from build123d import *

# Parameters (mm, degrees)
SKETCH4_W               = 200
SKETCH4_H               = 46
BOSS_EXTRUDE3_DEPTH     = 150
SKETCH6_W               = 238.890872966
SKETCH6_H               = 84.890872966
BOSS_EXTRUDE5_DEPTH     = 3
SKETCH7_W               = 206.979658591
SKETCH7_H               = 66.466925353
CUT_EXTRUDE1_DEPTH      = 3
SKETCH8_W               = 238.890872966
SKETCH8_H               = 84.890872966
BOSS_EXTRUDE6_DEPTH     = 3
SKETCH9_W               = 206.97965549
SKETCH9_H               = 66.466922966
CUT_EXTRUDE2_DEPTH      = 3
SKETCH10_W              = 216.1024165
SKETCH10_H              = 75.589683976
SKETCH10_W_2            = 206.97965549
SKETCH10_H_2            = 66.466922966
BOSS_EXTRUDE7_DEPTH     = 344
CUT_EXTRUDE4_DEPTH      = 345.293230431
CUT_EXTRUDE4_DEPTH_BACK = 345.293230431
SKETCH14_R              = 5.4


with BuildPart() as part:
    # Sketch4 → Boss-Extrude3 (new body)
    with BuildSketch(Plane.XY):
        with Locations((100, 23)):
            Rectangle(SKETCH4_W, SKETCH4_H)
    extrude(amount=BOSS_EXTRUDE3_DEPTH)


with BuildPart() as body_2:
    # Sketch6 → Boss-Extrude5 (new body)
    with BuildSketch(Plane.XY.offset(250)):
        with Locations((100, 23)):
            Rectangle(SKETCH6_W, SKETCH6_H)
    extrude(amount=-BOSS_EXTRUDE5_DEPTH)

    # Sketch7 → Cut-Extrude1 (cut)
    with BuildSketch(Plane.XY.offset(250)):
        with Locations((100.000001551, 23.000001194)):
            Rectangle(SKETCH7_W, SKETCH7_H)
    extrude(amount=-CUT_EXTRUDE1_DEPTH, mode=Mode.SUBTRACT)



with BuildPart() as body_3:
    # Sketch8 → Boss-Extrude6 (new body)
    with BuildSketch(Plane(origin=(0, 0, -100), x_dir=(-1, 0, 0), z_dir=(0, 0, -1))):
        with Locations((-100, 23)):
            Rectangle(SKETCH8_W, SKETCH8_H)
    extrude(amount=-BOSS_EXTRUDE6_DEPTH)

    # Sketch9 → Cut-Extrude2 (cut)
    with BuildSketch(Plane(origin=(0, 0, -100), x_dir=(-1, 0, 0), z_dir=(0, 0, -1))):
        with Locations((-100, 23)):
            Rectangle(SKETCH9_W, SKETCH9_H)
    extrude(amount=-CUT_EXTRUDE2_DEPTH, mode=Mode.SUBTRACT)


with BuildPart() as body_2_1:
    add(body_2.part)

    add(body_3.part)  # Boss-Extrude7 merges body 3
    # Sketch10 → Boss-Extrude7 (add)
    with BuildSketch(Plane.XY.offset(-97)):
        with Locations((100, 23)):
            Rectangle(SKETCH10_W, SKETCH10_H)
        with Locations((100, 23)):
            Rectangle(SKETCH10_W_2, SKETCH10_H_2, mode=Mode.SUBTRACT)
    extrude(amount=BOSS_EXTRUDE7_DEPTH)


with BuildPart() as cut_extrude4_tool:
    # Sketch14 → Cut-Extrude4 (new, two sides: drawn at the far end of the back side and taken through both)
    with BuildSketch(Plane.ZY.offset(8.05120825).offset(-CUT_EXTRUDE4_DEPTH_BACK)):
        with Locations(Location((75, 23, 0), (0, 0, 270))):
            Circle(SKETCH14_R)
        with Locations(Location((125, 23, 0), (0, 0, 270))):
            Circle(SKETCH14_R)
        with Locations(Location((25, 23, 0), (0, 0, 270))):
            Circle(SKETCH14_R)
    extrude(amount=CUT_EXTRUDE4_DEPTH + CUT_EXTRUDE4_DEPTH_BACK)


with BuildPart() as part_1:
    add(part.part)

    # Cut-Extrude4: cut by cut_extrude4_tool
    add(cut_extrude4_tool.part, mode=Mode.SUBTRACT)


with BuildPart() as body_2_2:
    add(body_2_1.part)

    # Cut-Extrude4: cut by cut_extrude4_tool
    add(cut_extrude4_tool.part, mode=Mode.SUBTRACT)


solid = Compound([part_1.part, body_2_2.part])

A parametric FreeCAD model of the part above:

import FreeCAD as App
import Part
import Sketcher

doc = App.newDocument("Part")
body = doc.addObject("PartDesign::Body", "Body")

sketch1 = doc.addObject("Sketcher::SketchObject", "Sketch")
body.addObject(sketch1)
sketch1.AttachmentSupport = (doc.XY_Plane, [""])
sketch1.MapMode = "FlatFace"
sketch1.addGeometry([
    Part.LineSegment(App.Vector(0, 46, 0), App.Vector(0, 0, 0)),
    Part.LineSegment(App.Vector(0, 0, 0), App.Vector(200, 0, 0)),
    Part.LineSegment(App.Vector(200, 0, 0), App.Vector(200, 46, 0)),
    Part.LineSegment(App.Vector(200, 46, 0), App.Vector(0, 46, 0)),
], False)
sketch1.addConstraint([
    Sketcher.Constraint("Coincident", 0, 2, 1, 1),
    Sketcher.Constraint("Coincident", 1, 2, 2, 1),
    Sketcher.Constraint("Coincident", 2, 2, 3, 1),
    Sketcher.Constraint("Coincident", 3, 2, 0, 1),
    Sketcher.Constraint("Vertical", 0),
    Sketcher.Constraint("Horizontal", 1),
    Sketcher.Constraint("Vertical", 2),
    Sketcher.Constraint("Horizontal", 3),
    Sketcher.Constraint("Coincident", 0, 2, -1, 1),
    Sketcher.Constraint("DistanceX", 1, 1, 1, 2, 200.0),
    Sketcher.Constraint("DistanceY", 0, 2, 0, 1, 46.0),
])
pad1 = doc.addObject("PartDesign::Pad", "Pad")
body.addObject(pad1)
pad1.Profile = sketch1
pad1.Length = 150
body2 = doc.addObject("PartDesign::Body", "Body001")

sketch2 = doc.addObject("Sketcher::SketchObject", "Sketch001")
body2.addObject(sketch2)
sketch2.AttachmentSupport = (doc.getObject("XY_Plane001"), [""])
sketch2.MapMode = "FlatFace"
sketch2.AttachmentOffset = App.Placement(App.Vector(0, 0, 250), App.Rotation())
sketch2.addGeometry([
    Part.LineSegment(App.Vector(-19.445436, 65.445436, 0), App.Vector(-19.445436, -19.445436, 0)),
    Part.LineSegment(App.Vector(-19.445436, -19.445436, 0), App.Vector(219.445436, -19.445436, 0)),
    Part.LineSegment(App.Vector(219.445436, -19.445436, 0), App.Vector(219.445436, 65.445436, 0)),
    Part.LineSegment(App.Vector(219.445436, 65.445436, 0), App.Vector(-19.445436, 65.445436, 0)),
], False)
sketch2.addConstraint([
    Sketcher.Constraint("Coincident", 0, 2, 1, 1),
    Sketcher.Constraint("Coincident", 1, 2, 2, 1),
    Sketcher.Constraint("Coincident", 2, 2, 3, 1),
    Sketcher.Constraint("Coincident", 3, 2, 0, 1),
    Sketcher.Constraint("Vertical", 0),
    Sketcher.Constraint("Horizontal", 1),
    Sketcher.Constraint("Vertical", 2),
    Sketcher.Constraint("Horizontal", 3),
    Sketcher.Constraint("DistanceX", 1, 1, 1, 2, 238.890873),
    Sketcher.Constraint("DistanceY", 0, 2, 0, 1, 84.890873),
    Sketcher.Constraint("DistanceX", 0, 2, -1, 1, 19.445436),
    Sketcher.Constraint("DistanceY", 0, 2, -1, 1, 19.445436),
])
pad2 = doc.addObject("PartDesign::Pad", "Pad001")
body2.addObject(pad2)
pad2.Profile = sketch2
pad2.Length = 3
pad2.Reversed = True

sketch3 = doc.addObject("Sketcher::SketchObject", "Sketch002")
body2.addObject(sketch3)
sketch3.AttachmentSupport = (doc.getObject("XY_Plane001"), [""])
sketch3.MapMode = "FlatFace"
sketch3.AttachmentOffset = App.Placement(App.Vector(0, 0, 250), App.Rotation())
sketch3.addGeometry([
    Part.LineSegment(App.Vector(-3.489828, 56.233464, 0), App.Vector(-3.489828, -10.233461, 0)),
    Part.LineSegment(App.Vector(-3.489828, -10.233461, 0), App.Vector(203.489831, -10.233461, 0)),
    Part.LineSegment(App.Vector(203.489831, -10.233461, 0), App.Vector(203.489831, 56.233464, 0)),
    Part.LineSegment(App.Vector(203.489831, 56.233464, 0), App.Vector(-3.489828, 56.233464, 0)),
], False)
sketch3.addConstraint([
    Sketcher.Constraint("Coincident", 0, 2, 1, 1),
    Sketcher.Constraint("Coincident", 1, 2, 2, 1),
    Sketcher.Constraint("Coincident", 2, 2, 3, 1),
    Sketcher.Constraint("Coincident", 3, 2, 0, 1),
    Sketcher.Constraint("Vertical", 0),
    Sketcher.Constraint("Horizontal", 1),
    Sketcher.Constraint("Vertical", 2),
    Sketcher.Constraint("Horizontal", 3),
    Sketcher.Constraint("DistanceX", 1, 1, 1, 2, 206.979659),
    Sketcher.Constraint("DistanceY", 0, 2, 0, 1, 66.466925),
    Sketcher.Constraint("DistanceY", 0, 2, -1, 1, 10.233461),
    Sketcher.Constraint("DistanceX", -1, 1, 1, 2, 203.489831),
])
pocket1 = doc.addObject("PartDesign::Pocket", "Pocket")
body2.addObject(pocket1)
pocket1.Profile = sketch3
pocket1.Length = 3
body3 = doc.addObject("PartDesign::Body", "Body002")

sketch4 = doc.addObject("Sketcher::SketchObject", "Sketch003")
body3.addObject(sketch4)
sketch4.AttachmentSupport = (doc.getObject("XY_Plane002"), [""])
sketch4.MapMode = "FlatFace"
sketch4.AttachmentOffset = App.Placement(App.Vector(0, 0, -100), App.Rotation())
sketch4.addGeometry([
    Part.LineSegment(App.Vector(219.445436, 65.445436, 0), App.Vector(219.445436, -19.445436, 0)),
    Part.LineSegment(App.Vector(219.445436, -19.445436, 0), App.Vector(-19.445436, -19.445436, 0)),
    Part.LineSegment(App.Vector(-19.445436, -19.445436, 0), App.Vector(-19.445436, 65.445436, 0)),
    Part.LineSegment(App.Vector(-19.445436, 65.445436, 0), App.Vector(219.445436, 65.445436, 0)),
], False)
sketch4.addConstraint([
    Sketcher.Constraint("Coincident", 0, 2, 1, 1),
    Sketcher.Constraint("Coincident", 1, 2, 2, 1),
    Sketcher.Constraint("Coincident", 2, 2, 3, 1),
    Sketcher.Constraint("Coincident", 3, 2, 0, 1),
    Sketcher.Constraint("Vertical", 0),
    Sketcher.Constraint("Horizontal", 1),
    Sketcher.Constraint("Vertical", 2),
    Sketcher.Constraint("Horizontal", 3),
    Sketcher.Constraint("DistanceX", 1, 2, 1, 1, 238.890873),
    Sketcher.Constraint("DistanceY", 0, 2, 0, 1, 84.890873),
    Sketcher.Constraint("DistanceX", -1, 1, 0, 2, 219.445436),
    Sketcher.Constraint("DistanceY", 0, 2, -1, 1, 19.445436),
])
pad3 = doc.addObject("PartDesign::Pad", "Pad002")
body3.addObject(pad3)
pad3.Profile = sketch4
pad3.Length = 3

sketch5 = doc.addObject("Sketcher::SketchObject", "Sketch004")
body3.addObject(sketch5)
sketch5.AttachmentSupport = (doc.getObject("XY_Plane002"), [""])
sketch5.MapMode = "FlatFace"
sketch5.AttachmentOffset = App.Placement(App.Vector(0, 0, -100), App.Rotation())
sketch5.addGeometry([
    Part.LineSegment(App.Vector(203.489828, 56.233461, 0), App.Vector(203.489828, -10.233461, 0)),
    Part.LineSegment(App.Vector(203.489828, -10.233461, 0), App.Vector(-3.489828, -10.233461, 0)),
    Part.LineSegment(App.Vector(-3.489828, -10.233461, 0), App.Vector(-3.489828, 56.233461, 0)),
    Part.LineSegment(App.Vector(-3.489828, 56.233461, 0), App.Vector(203.489828, 56.233461, 0)),
], False)
sketch5.addConstraint([
    Sketcher.Constraint("Coincident", 0, 2, 1, 1),
    Sketcher.Constraint("Coincident", 1, 2, 2, 1),
    Sketcher.Constraint("Coincident", 2, 2, 3, 1),
    Sketcher.Constraint("Coincident", 3, 2, 0, 1),
    Sketcher.Constraint("Vertical", 0),
    Sketcher.Constraint("Horizontal", 1),
    Sketcher.Constraint("Vertical", 2),
    Sketcher.Constraint("Horizontal", 3),
    Sketcher.Constraint("DistanceX", 1, 2, 1, 1, 206.979655),
    Sketcher.Constraint("DistanceY", 0, 2, 0, 1, 66.466923),
    Sketcher.Constraint("DistanceY", 0, 2, -1, 1, 10.233461),
    Sketcher.Constraint("DistanceX", -1, 1, 0, 2, 203.489828),
])
pocket2 = doc.addObject("PartDesign::Pocket", "Pocket001")
body3.addObject(pocket2)
pocket2.Profile = sketch5
pocket2.Length = 3
pocket2.Reversed = True
body2.AllowCompound = True
doc.recompute()

boolean = doc.addObject("PartDesign::Boolean", "Boolean")
body2.addObject(boolean)
boolean.Type = "Fuse"
boolean.addObjects([body3])

sketch6 = doc.addObject("Sketcher::SketchObject", "Sketch005")
body2.addObject(sketch6)
sketch6.AttachmentSupport = (doc.getObject("XY_Plane001"), [""])
sketch6.MapMode = "FlatFace"
sketch6.AttachmentOffset = App.Placement(App.Vector(0, 0, -97), App.Rotation())
sketch6.addGeometry([
    Part.LineSegment(App.Vector(-8.051208, 60.794842, 0), App.Vector(-8.051208, -14.794842, 0)),
    Part.LineSegment(App.Vector(-8.051208, -14.794842, 0), App.Vector(208.051208, -14.794842, 0)),
    Part.LineSegment(App.Vector(208.051208, -14.794842, 0), App.Vector(208.051208, 60.794842, 0)),
    Part.LineSegment(App.Vector(208.051208, 60.794842, 0), App.Vector(-8.051208, 60.794842, 0)),
    Part.LineSegment(App.Vector(203.489828, -10.233461, 0), App.Vector(-3.489828, -10.233461, 0)),
    Part.LineSegment(App.Vector(-3.489828, -10.233461, 0), App.Vector(-3.489828, 56.233461, 0)),
    Part.LineSegment(App.Vector(-3.489828, 56.233461, 0), App.Vector(203.489828, 56.233461, 0)),
    Part.LineSegment(App.Vector(203.489828, 56.233461, 0), App.Vector(203.489828, -10.233461, 0)),
], False)
sketch6.addConstraint([
    Sketcher.Constraint("Coincident", 0, 2, 1, 1),
    Sketcher.Constraint("Coincident", 1, 2, 2, 1),
    Sketcher.Constraint("Coincident", 2, 2, 3, 1),
    Sketcher.Constraint("Coincident", 3, 2, 0, 1),
    Sketcher.Constraint("Coincident", 4, 2, 5, 1),
    Sketcher.Constraint("Coincident", 5, 2, 6, 1),
    Sketcher.Constraint("Coincident", 6, 2, 7, 1),
    Sketcher.Constraint("Coincident", 7, 2, 4, 1),
    Sketcher.Constraint("Vertical", 0),
    Sketcher.Constraint("Horizontal", 1),
    Sketcher.Constraint("Vertical", 2),
    Sketcher.Constraint("Horizontal", 3),
    Sketcher.Constraint("Horizontal", 4),
    Sketcher.Constraint("Vertical", 5),
    Sketcher.Constraint("Horizontal", 6),
    Sketcher.Constraint("Vertical", 7),
    Sketcher.Constraint("DistanceX", 1, 1, 1, 2, 216.102417),
    Sketcher.Constraint("DistanceX", 4, 2, 4, 1, 206.979655),
    Sketcher.Constraint("DistanceY", 0, 2, 0, 1, 75.589684),
    Sketcher.Constraint("DistanceY", 5, 1, 5, 2, 66.466923),
    Sketcher.Constraint("DistanceX", 0, 2, -1, 1, 8.051208),
    Sketcher.Constraint("DistanceY", 0, 2, -1, 1, 14.794842),
    Sketcher.Constraint("DistanceY", 4, 2, -1, 1, 10.233461),
    Sketcher.Constraint("DistanceX", 0, 2, 4, 2, 4.561381),
])
pad4 = doc.addObject("PartDesign::Pad", "Pad003")
body2.addObject(pad4)
pad4.Profile = sketch6
pad4.Length = 344
body4 = doc.addObject("PartDesign::Body", "Body003")
body4.AllowCompound = True

sketch7 = doc.addObject("Sketcher::SketchObject", "Sketch006")
body4.addObject(sketch7)
sketch7.AttachmentSupport = (doc.getObject("YZ_Plane003"), [""])
sketch7.MapMode = "FlatFace"
sketch7.AttachmentOffset = App.Placement(App.Vector(0, 0, -8.051208), App.Rotation())
sketch7.addGeometry([
    Part.Circle(App.Vector(23, 75, 0), App.Vector(0, 0, 1), 5.4),
    Part.Circle(App.Vector(23, 125, 0), App.Vector(0, 0, 1), 5.4),
    Part.Circle(App.Vector(23, 25, 0), App.Vector(0, 0, 1), 5.4),
], False)
sketch7.addConstraint([
    Sketcher.Constraint("Equal", 0, 1),
    Sketcher.Constraint("Equal", 1, 2),
    Sketcher.Constraint("Vertical", 0, 3, 1, 3),
    Sketcher.Constraint("Vertical", 1, 3, 2, 3),
    Sketcher.Constraint("Diameter", 0, 10.8),
    Sketcher.Constraint("DistanceX", -1, 1, 0, 3, 23.0),
    Sketcher.Constraint("DistanceY", -1, 1, 0, 3, 75.0),
    Sketcher.Constraint("DistanceY", -1, 1, 1, 3, 125.0),
    Sketcher.Constraint("DistanceY", -1, 1, 2, 3, 25.0),
])
pad5 = doc.addObject("PartDesign::Pad", "Pad004")
body4.addObject(pad5)
pad5.Profile = sketch7
pad5.Type = "TwoLengths"
pad5.Length = 345.29323
pad5.Length2 = 345.29323
pad5.Reversed = True
doc.recompute()

body5 = doc.addObject("PartDesign::Body", "Body004")
body5.BaseFeature = body4
boolean2 = doc.addObject("PartDesign::Boolean", "Boolean001")
body.addObject(boolean2)
boolean2.Type = "Cut"
boolean2.addObjects([body5])
doc.recompute()

boolean3 = doc.addObject("PartDesign::Boolean", "Boolean002")
body2.addObject(boolean3)
boolean3.Type = "Cut"
boolean3.addObjects([body4])

doc.recompute()
